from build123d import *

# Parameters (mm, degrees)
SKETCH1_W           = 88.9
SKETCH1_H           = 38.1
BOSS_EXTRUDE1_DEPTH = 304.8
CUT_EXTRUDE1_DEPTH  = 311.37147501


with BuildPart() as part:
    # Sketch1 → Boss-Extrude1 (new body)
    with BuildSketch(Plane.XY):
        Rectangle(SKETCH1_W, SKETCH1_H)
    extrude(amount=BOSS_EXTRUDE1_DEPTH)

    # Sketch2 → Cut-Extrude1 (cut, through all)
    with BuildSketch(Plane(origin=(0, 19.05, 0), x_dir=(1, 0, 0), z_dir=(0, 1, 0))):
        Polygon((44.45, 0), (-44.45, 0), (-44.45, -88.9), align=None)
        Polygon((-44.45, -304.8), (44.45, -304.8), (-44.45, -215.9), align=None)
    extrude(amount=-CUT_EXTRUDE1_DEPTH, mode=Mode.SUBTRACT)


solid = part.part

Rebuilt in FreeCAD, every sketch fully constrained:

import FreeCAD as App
import Part
import Sketcher
Q = App.Units.Quantity


def add_polygon(sketch, points):
    """Adds a closed chain of lines whose ends are joined by coincident constraints."""
    first, n = sketch.GeometryCount, len(points)
    for a, b in zip(points, points[1:] + points[:1]):
        sketch.addGeometry(Part.LineSegment(App.Vector(*a, 0), App.Vector(*b, 0)), False)
    for i in range(n):
        sketch.addConstraint(Sketcher.Constraint("Coincident", first + i, 2, first + (i + 1) % n, 1))

doc = App.newDocument("Part")
params = doc.addObject("Spreadsheet::Sheet", "Params")
for row, (alias, value) in enumerate([
    ("sketch1_width", "3.5 in"),
    ("sketch1_height", "1.5 in"),
    ("pad1_length", "12 in"),
    ("sketch2_width", "3.5 in"),
], start=1):
    params.set(f"A{row}", alias)
    params.set(f"B{row}", "=" + value)
    params.setAlias(f"B{row}", alias)

body = doc.addObject("PartDesign::Body", "Body")

# Sketch on XY plane
sketch1 = body.newObject("Sketcher::SketchObject", "Sketch")
sketch1.AttachmentSupport = (doc.getObject("XY_Plane"), [""])
sketch1.MapMode = "FlatFace"
add_polygon(sketch1, [(-44, 19), (-44, -19), (44, -19), (44, 19)])  # lines 0-3
sketch1.addConstraint([
    Sketcher.Constraint("Vertical", 0),
    Sketcher.Constraint("Horizontal", 1),
    Sketcher.Constraint("Vertical", 2),
    Sketcher.Constraint("Horizontal", 3),
    Sketcher.Constraint("Symmetric", 0, 2, 2, 2, -1, 1),
    Sketcher.Constraint("DistanceX", 1, 1, 1, 2, Q("3.5 in")),
    Sketcher.Constraint("DistanceY", 0, 2, 0, 1, Q("1.5 in")),
])
sketch1.setExpression("Constraints[9]", "Params.sketch1_width")
sketch1.setExpression("Constraints[10]", "Params.sketch1_height")
pad1 = body.newObject("PartDesign::Pad", "Pad")
pad1.Profile = sketch1
pad1.setExpression("Length", "Params.pad1_length")

# Sketch on XZ plane
sketch2 = body.newObject("Sketcher::SketchObject", "Sketch001")
sketch2.AttachmentSupport = (doc.getObject("XZ_Plane"), [""])
sketch2.MapMode = "FlatFace"
sketch2.AttachmentOffset = App.Placement(App.Vector(0, 0, -0.75 * 25.4), App.Rotation())
add_polygon(sketch2, [(44, 0), (-44, 0), (-44, 89)])  # lines 0-2
add_polygon(sketch2, [(-44, 305), (44, 305), (-44, 216)])  # lines 3-5
sketch2.addConstraint([
    Sketcher.Constraint("Horizontal", 0),
    Sketcher.Constraint("Vertical", 1),
    Sketcher.Constraint("Horizontal", 3),
    Sketcher.Constraint("Vertical", 5),
    Sketcher.Constraint("Symmetric", 0, 2, 2, 2, -1, 1),
    Sketcher.Constraint("Perpendicular", 2, 4),
    Sketcher.Constraint("Vertical", 2, 2, 3, 2),
    Sketcher.Constraint("Vertical", 1, 2, 4, 2),
    Sketcher.Constraint("Equal", 3, 1),
    Sketcher.Constraint("DistanceX", 0, 2, 0, 1, Q("3.5 in")),
    Sketcher.Constraint("DistanceY", -1, 1, 3, 2, Q("12 in")),
])
sketch2.setExpression("Constraints[15]", "Params.sketch2_width")
pocket1 = body.newObject("PartDesign::Pocket", "Pocket")
pocket1.Profile = sketch2
pocket1.Type = "ThroughAll"
pocket1.Reversed = True

doc.recompute()
